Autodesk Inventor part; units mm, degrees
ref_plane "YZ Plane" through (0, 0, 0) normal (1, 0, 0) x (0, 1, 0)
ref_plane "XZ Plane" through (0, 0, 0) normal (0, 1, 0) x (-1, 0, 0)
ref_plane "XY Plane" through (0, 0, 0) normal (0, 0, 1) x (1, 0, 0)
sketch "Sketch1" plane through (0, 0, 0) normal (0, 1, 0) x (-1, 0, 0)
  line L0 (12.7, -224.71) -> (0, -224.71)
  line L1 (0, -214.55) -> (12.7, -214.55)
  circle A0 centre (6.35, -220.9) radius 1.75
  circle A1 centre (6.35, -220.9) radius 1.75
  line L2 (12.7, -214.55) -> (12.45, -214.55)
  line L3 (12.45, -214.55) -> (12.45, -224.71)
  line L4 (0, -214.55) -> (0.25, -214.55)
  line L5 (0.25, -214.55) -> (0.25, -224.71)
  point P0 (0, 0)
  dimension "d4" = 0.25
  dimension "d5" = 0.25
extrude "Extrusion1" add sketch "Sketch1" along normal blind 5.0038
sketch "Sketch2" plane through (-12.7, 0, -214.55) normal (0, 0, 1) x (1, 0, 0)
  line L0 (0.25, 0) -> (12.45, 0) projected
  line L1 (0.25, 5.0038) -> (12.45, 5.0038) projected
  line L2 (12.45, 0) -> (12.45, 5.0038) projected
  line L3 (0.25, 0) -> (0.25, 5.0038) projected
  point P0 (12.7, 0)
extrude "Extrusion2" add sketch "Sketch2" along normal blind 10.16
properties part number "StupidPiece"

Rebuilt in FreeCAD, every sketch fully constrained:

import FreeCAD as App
import Part
import Sketcher
from FreeCAD import Vector
Q = App.Units.Quantity


def add_polygon(sketch, points):
    """Adds a closed chain of lines whose ends are joined by coincident constraints."""
    first, n = sketch.GeometryCount, len(points)
    for a, b in zip(points, points[1:] + points[:1]):
        sketch.addGeometry(Part.LineSegment(App.Vector(*a, 0), App.Vector(*b, 0)), False)
    for i in range(n):
        sketch.addConstraint(Sketcher.Constraint("Coincident", first + i, 2, first + (i + 1) % n, 1))

doc = App.newDocument("Part")
params = doc.addObject("Spreadsheet::Sheet", "Params")
for row, (alias, value) in enumerate([
    ("sketch1_height", "0.4 in"),
    ("pad1_length", "0.197 in"),
    ("sketch2_height", "0.197 in"),
    ("pad2_length", "0.4 in"),
], start=1):
    params.set(f"A{row}", alias)
    params.set(f"B{row}", "=" + value)
    params.setAlias(f"B{row}", alias)

body = doc.addObject("PartDesign::Body", "Body")

# Sketch on XZ plane
sketch1 = doc.addObject("Sketcher::SketchObject", "Sketch")
body.addObject(sketch1)
sketch1.AttachmentSupport = (doc.XZ_Plane, [""])
sketch1.MapMode = "FlatFace"
add_polygon(sketch1, [(-0.2, -224.7), (-12.4, -224.7), (-12.4, -214.6), (-0.2, -214.6)])  # lines 0-3
sketch1.addGeometry(Part.Circle(Vector(-6.3, -220.9, 0), Vector(0, 0, 1), 1.8), False)  # 4
sketch1.addConstraint(Sketcher.Constraint("Horizontal", 0))
sketch1.addConstraint(Sketcher.Constraint("Vertical", 1))
sketch1.addConstraint(Sketcher.Constraint("Horizontal", 2))
sketch1.addConstraint(Sketcher.Constraint("Vertical", 3))
sketch1.addConstraint(Sketcher.Constraint("DistanceY", 1, 1, 1, 2, Q("0.4 in")))
sketch1.addConstraint(Sketcher.Constraint("Diameter", 4, Q("0.1378 in")))
sketch1.addConstraint(Sketcher.Constraint("DistanceX", 4, 3, -1, 1, Q("0.25 in")))
sketch1.addConstraint(Sketcher.Constraint("DistanceX", 2, 2, -1, 1, 0.25))
sketch1.addConstraint(Sketcher.Constraint("DistanceY", 0, 2, 4, 3, Q("0.15 in")))
sketch1.addConstraint(Sketcher.Constraint("DistanceX", 0, 2, 0, 1, 12.2))
sketch1.addConstraint(Sketcher.Constraint("DistanceY", 4, 3, -1, 1, 220.9))
sketch1.setExpression("Constraints[8]", "Params.sketch1_height")
pad1 = doc.addObject("PartDesign::Pad", "Pad")
body.addObject(pad1)
pad1.Profile = sketch1
pad1.setExpression("Length", "Params.pad1_length")
pad1.Reversed = True

# Sketch on XY plane
sketch2 = doc.addObject("Sketcher::SketchObject", "Sketch001")
body.addObject(sketch2)
sketch2.AttachmentSupport = (doc.XY_Plane, [""])
sketch2.MapMode = "FlatFace"
sketch2.AttachmentOffset = App.Placement(Vector(0, 0, -214.55), App.Rotation())
add_polygon(sketch2, [(-12, 5), (-12, 0), (0, 0), (0, 5)])  # lines 0-3
sketch2.addConstraint(Sketcher.Constraint("Vertical", 0))
sketch2.addConstraint(Sketcher.Constraint("Horizontal", 1))
sketch2.addConstraint(Sketcher.Constraint("Vertical", 2))
sketch2.addConstraint(Sketcher.Constraint("Horizontal", 3))
sketch2.addConstraint(Sketcher.Constraint("PointOnObject", 0, 2, -1))
sketch2.addConstraint(Sketcher.Constraint("DistanceY", 0, 2, 0, 1, Q("0.197 in")))
sketch2.addConstraint(Sketcher.Constraint("DistanceX", 1, 1, 1, 2, 12.2))
sketch2.addConstraint(Sketcher.Constraint("DistanceX", 0, 2, -1, 1, 12.45))
sketch2.setExpression("Constraints[9]", "Params.sketch2_height")
pad2 = doc.addObject("PartDesign::Pad", "Pad001")
body.addObject(pad2)
pad2.Profile = sketch2
pad2.setExpression("Length", "Params.pad2_length")

doc.recompute()
